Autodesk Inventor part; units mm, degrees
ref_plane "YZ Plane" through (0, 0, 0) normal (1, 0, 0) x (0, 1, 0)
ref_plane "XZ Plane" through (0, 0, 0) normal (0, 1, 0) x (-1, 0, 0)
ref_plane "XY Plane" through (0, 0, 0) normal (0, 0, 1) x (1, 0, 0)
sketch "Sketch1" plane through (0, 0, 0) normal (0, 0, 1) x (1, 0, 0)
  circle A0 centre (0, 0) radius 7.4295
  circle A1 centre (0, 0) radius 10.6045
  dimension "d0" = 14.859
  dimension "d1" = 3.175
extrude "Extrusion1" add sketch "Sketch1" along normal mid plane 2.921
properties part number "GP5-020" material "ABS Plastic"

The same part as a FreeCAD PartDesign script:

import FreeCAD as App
import Part
import Sketcher

V = App.Vector
Q = App.Units.Quantity

doc = App.newDocument("Part")
body = doc.addObject("PartDesign::Body", "Body")

# Sketch on XY plane
sketch1 = body.newObject("Sketcher::SketchObject", "Sketch")
sketch1.AttachmentSupport = (doc.getObject("XY_Plane"), [""])
sketch1.MapMode = "FlatFace"
sketch1.addGeometry(Part.Circle(V(0, 0, 0), V(0, 0, 1), 10.6045), False)
sketch1.addGeometry(Part.Circle(V(0, 0, 0), V(0, 0, 1), 7.4295), False)
sketch1.addConstraint(Sketcher.Constraint("Coincident", 0, 3, -1, 1))
sketch1.addConstraint(Sketcher.Constraint("Coincident", 1, 3, -1, 1))
sketch1.addConstraint(Sketcher.Constraint("Diameter", 1, Q("0.585 in")))
sketch1.addConstraint(Sketcher.Constraint("Diameter", 0, Q("0.835 in")))
pad1 = body.newObject("PartDesign::Pad", "Pad")
pad1.Profile = sketch1
pad1.Length = Q("0.115 in")
pad1.Midplane = True

doc.recompute()
